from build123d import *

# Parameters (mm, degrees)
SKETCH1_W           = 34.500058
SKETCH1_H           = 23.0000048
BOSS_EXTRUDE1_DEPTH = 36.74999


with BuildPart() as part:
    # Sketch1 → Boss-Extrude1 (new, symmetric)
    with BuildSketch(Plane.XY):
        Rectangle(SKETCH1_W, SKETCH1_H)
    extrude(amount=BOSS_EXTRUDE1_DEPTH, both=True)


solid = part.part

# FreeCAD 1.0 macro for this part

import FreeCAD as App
import Part
import Sketcher

V = App.Vector


def add_polygon(sketch, points):
    """Adds a closed chain of lines whose ends are joined by coincident constraints."""
    first, n = sketch.GeometryCount, len(points)
    for a, b in zip(points, points[1:] + points[:1]):
        sketch.addGeometry(Part.LineSegment(App.Vector(*a, 0), App.Vector(*b, 0)), False)
    for i in range(n):
        sketch.addConstraint(Sketcher.Constraint("Coincident", first + i, 2, first + (i + 1) % n, 1))

doc = App.newDocument("Part")
body = doc.addObject("PartDesign::Body", "Body")

# Sketch on XY plane
sketch1 = body.newObject("Sketcher::SketchObject", "Sketch")
sketch1.AttachmentSupport = (doc.getObject("XY_Plane"), [""])
sketch1.MapMode = "FlatFace"
add_polygon(sketch1, [(-17, 12), (-17, -12), (17, -12), (17, 12)])  # lines 0-3
sketch1.addConstraint(Sketcher.Constraint("Vertical", 0))
sketch1.addConstraint(Sketcher.Constraint("Horizontal", 1))
sketch1.addConstraint(Sketcher.Constraint("Vertical", 2))
sketch1.addConstraint(Sketcher.Constraint("Horizontal", 3))
sketch1.addConstraint(Sketcher.Constraint("Symmetric", 0, 2, 2, 2, -1, 1))
sketch1.addConstraint(Sketcher.Constraint("DistanceX", 1, 1, 1, 2, 34.500058))
sketch1.addConstraint(Sketcher.Constraint("DistanceY", 0, 2, 0, 1, 23.000005))
pad1 = body.newObject("PartDesign::Pad", "Pad")
pad1.Profile = sketch1
pad1.Length = 73.49998
pad1.Midplane = True

doc.recompute()
